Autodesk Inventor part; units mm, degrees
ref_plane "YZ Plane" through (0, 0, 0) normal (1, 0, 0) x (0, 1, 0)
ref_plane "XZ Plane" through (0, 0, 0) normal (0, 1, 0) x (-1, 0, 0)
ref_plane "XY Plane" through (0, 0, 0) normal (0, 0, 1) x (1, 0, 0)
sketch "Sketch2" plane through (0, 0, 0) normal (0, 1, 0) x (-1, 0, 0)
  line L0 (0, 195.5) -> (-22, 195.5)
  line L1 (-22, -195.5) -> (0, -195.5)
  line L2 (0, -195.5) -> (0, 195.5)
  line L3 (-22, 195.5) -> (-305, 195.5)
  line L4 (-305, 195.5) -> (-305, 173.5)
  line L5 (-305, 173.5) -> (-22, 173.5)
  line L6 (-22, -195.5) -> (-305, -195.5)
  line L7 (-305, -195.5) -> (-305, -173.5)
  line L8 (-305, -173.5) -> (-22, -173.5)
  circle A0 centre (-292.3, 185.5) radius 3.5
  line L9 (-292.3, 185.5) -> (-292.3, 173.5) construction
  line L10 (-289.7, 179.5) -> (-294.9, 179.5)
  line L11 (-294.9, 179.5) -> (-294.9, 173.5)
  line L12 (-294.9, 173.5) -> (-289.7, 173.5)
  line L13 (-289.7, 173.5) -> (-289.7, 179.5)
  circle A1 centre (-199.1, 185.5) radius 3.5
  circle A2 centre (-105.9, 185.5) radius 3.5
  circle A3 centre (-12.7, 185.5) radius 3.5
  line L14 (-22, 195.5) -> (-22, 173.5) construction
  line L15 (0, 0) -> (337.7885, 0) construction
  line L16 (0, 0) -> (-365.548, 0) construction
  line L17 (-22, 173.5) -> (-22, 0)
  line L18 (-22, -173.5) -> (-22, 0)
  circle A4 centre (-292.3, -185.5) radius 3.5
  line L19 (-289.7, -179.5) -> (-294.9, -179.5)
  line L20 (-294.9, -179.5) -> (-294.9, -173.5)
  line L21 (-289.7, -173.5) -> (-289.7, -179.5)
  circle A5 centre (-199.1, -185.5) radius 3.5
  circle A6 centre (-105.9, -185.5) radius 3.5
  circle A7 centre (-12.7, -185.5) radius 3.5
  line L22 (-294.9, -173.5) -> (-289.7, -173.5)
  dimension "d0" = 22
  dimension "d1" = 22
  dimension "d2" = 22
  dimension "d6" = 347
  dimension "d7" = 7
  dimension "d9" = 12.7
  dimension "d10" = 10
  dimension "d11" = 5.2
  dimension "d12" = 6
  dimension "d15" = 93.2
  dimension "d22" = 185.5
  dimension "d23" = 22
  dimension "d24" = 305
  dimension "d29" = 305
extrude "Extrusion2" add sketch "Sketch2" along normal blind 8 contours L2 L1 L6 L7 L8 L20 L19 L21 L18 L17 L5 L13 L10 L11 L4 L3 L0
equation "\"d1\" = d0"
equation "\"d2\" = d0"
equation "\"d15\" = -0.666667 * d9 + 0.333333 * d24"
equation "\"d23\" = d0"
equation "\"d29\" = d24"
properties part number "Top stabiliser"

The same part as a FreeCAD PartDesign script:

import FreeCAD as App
import Part
import Sketcher

V = App.Vector

doc = App.newDocument("Part")
params = doc.addObject("Spreadsheet::Sheet", "Params")
for row, (alias, value) in enumerate([
    ("sketch1_diameter", "7 mm"),
    ("sketch1_width", "305 mm"),
    ("sketch1_height", "22 mm"),
    ("sketch1_height2", "6 mm"),
    ("sketch1_height3", "347 mm"),
    ("pad1_length", "8 mm"),
], start=1):
    params.set(f"A{row}", alias)
    params.set(f"B{row}", "=" + value)
    params.setAlias(f"B{row}", alias)

body = doc.addObject("PartDesign::Body", "Body")

sketch1 = body.newObject("Sketcher::SketchObject", "Sketch")
sketch1.AttachmentSupport = (doc.getObject("XZ_Plane"), [""])
sketch1.MapMode = "FlatFace"
sketch1.addGeometry([
    Part.LineSegment(V(0, -195.5, 0), V(0, 195.5, 0)),
    Part.LineSegment(V(0, 195.5, 0), V(305, 195.5, 0)),
    Part.LineSegment(V(305, 195.5, 0), V(305, 173.5, 0)),
    Part.LineSegment(V(305, 173.5, 0), V(294.9, 173.5, 0)),
    Part.LineSegment(V(294.9, 173.5, 0), V(294.9, 179.5, 0)),
    Part.LineSegment(V(294.9, 179.5, 0), V(289.7, 179.5, 0)),
    Part.LineSegment(V(289.7, 179.5, 0), V(289.7, 173.5, 0)),
    Part.LineSegment(V(289.7, 173.5, 0), V(22, 173.5, 0)),
    Part.LineSegment(V(22, 173.5, 0), V(22, -173.5, 0)),
    Part.LineSegment(V(22, -173.5, 0), V(289.7, -173.5, 0)),
    Part.LineSegment(V(289.7, -173.5, 0), V(289.7, -179.5, 0)),
    Part.LineSegment(V(289.7, -179.5, 0), V(294.9, -179.5, 0)),
    Part.LineSegment(V(294.9, -179.5, 0), V(294.9, -173.5, 0)),
    Part.LineSegment(V(294.9, -173.5, 0), V(305, -173.5, 0)),
    Part.LineSegment(V(305, -173.5, 0), V(305, -195.5, 0)),
    Part.LineSegment(V(305, -195.5, 0), V(0, -195.5, 0)),
    Part.Circle(V(292.3, -185.5, 0), V(0, 0, 1), 3.5),
    Part.Circle(V(199.1, -185.5, 0), V(0, 0, 1), 3.5),
    Part.Circle(V(105.9, -185.5, 0), V(0, 0, 1), 3.5),
    Part.Circle(V(12.7, -185.5, 0), V(0, 0, 1), 3.5),
    Part.Circle(V(292.3, 185.5, 0), V(0, 0, 1), 3.5),
    Part.Circle(V(199.1, 185.5, 0), V(0, 0, 1), 3.5),
    Part.Circle(V(105.9, 185.5, 0), V(0, 0, 1), 3.5),
    Part.Circle(V(12.7, 185.5, 0), V(0, 0, 1), 3.5),
], False)
sketch1.addConstraint([
    Sketcher.Constraint("Coincident", 0, 2, 1, 1),
    Sketcher.Constraint("Coincident", 1, 2, 2, 1),
    Sketcher.Constraint("Coincident", 2, 2, 3, 1),
    Sketcher.Constraint("Coincident", 3, 2, 4, 1),
    Sketcher.Constraint("Coincident", 4, 2, 5, 1),
    Sketcher.Constraint("Coincident", 5, 2, 6, 1),
    Sketcher.Constraint("Coincident", 6, 2, 7, 1),
    Sketcher.Constraint("Coincident", 7, 2, 8, 1),
    Sketcher.Constraint("Coincident", 8, 2, 9, 1),
    Sketcher.Constraint("Coincident", 9, 2, 10, 1),
    Sketcher.Constraint("Coincident", 10, 2, 11, 1),
    Sketcher.Constraint("Coincident", 11, 2, 12, 1),
    Sketcher.Constraint("Coincident", 12, 2, 13, 1),
    Sketcher.Constraint("Coincident", 13, 2, 14, 1),
    Sketcher.Constraint("Coincident", 14, 2, 15, 1),
    Sketcher.Constraint("Coincident", 15, 2, 0, 1),
    Sketcher.Constraint("Vertical", 0),
    Sketcher.Constraint("Horizontal", 1),
    Sketcher.Constraint("Vertical", 2),
    Sketcher.Constraint("Horizontal", 3),
    Sketcher.Constraint("Vertical", 4),
    Sketcher.Constraint("Horizontal", 5),
    Sketcher.Constraint("Vertical", 6),
    Sketcher.Constraint("Horizontal", 7),
    Sketcher.Constraint("Vertical", 8),
    Sketcher.Constraint("Horizontal", 9),
    Sketcher.Constraint("Vertical", 10),
    Sketcher.Constraint("Horizontal", 11),
    Sketcher.Constraint("Vertical", 12),
    Sketcher.Constraint("Horizontal", 13),
    Sketcher.Constraint("Vertical", 14),
    Sketcher.Constraint("Horizontal", 15),
    Sketcher.Constraint("Equal", 16, 17),
    Sketcher.Constraint("Equal", 17, 18),
    Sketcher.Constraint("Equal", 18, 19),
    Sketcher.Constraint("Equal", 19, 20),
    Sketcher.Constraint("Equal", 20, 21),
    Sketcher.Constraint("Equal", 21, 22),
    Sketcher.Constraint("Equal", 22, 23),
    Sketcher.Constraint("Symmetric", 0, 2, 15, 2, -1, 1),
    Sketcher.Constraint("Symmetric", 16, 3, 20, 3, -1),
    Sketcher.Constraint("Symmetric", 17, 3, 21, 3, -1),
    Sketcher.Constraint("Symmetric", 18, 3, 22, 3, -1),
    Sketcher.Constraint("Symmetric", 19, 3, 23, 3, -1),
    Sketcher.Constraint("Symmetric", 6, 2, 9, 2, -1),
    Sketcher.Constraint("Symmetric", 4, 2, 11, 2, -1),
    Sketcher.Constraint("Symmetric", 2, 2, 13, 2, -1),
    Sketcher.Constraint("Horizontal", 16, 3, 17, 3),
    Sketcher.Constraint("Horizontal", 17, 3, 18, 3),
    Sketcher.Constraint("Horizontal", 18, 3, 19, 3),
    Sketcher.Constraint("Horizontal", 3, 2, 6, 2),
    Sketcher.Constraint("Diameter", 16, 7.0),
    Sketcher.Constraint("DistanceX", 1, 1, 1, 2, 305.0),
    Sketcher.Constraint("DistanceY", 2, 2, 2, 1, 22.0),
    Sketcher.Constraint("DistanceY", 4, 1, 4, 2, 6.0),
    Sketcher.Constraint("DistanceY", 8, 2, 8, 1, 347.0),
    Sketcher.Constraint("DistanceX", 5, 2, 5, 1, 5.2),
    Sketcher.Constraint("DistanceX", -1, 1, 7, 2, 22.0),
    Sketcher.Constraint("DistanceY", 23, 3, 0, 2, 10.0),
    Sketcher.Constraint("DistanceX", -1, 1, 19, 3, 12.7),
    Sketcher.Constraint("DistanceX", 17, 3, 16, 3, 93.2),
    Sketcher.Constraint("DistanceX", 18, 3, 17, 3, 93.2),
    Sketcher.Constraint("DistanceX", 19, 3, 18, 3, 93.2),
    Sketcher.Constraint("DistanceX", 3, 2, 3, 1, 10.1),
])
sketch1.setExpression("Constraints[51]", "Params.sketch1_diameter")
sketch1.setExpression("Constraints[52]", "Params.sketch1_width")
sketch1.setExpression("Constraints[53]", "Params.sketch1_height")
sketch1.setExpression("Constraints[54]", "Params.sketch1_height2")
sketch1.setExpression("Constraints[55]", "Params.sketch1_height3")
pad1 = body.newObject("PartDesign::Pad", "Pad")
pad1.Profile = sketch1
pad1.setExpression("Length", "Params.pad1_length")
pad1.Reversed = True

doc.recompute()
